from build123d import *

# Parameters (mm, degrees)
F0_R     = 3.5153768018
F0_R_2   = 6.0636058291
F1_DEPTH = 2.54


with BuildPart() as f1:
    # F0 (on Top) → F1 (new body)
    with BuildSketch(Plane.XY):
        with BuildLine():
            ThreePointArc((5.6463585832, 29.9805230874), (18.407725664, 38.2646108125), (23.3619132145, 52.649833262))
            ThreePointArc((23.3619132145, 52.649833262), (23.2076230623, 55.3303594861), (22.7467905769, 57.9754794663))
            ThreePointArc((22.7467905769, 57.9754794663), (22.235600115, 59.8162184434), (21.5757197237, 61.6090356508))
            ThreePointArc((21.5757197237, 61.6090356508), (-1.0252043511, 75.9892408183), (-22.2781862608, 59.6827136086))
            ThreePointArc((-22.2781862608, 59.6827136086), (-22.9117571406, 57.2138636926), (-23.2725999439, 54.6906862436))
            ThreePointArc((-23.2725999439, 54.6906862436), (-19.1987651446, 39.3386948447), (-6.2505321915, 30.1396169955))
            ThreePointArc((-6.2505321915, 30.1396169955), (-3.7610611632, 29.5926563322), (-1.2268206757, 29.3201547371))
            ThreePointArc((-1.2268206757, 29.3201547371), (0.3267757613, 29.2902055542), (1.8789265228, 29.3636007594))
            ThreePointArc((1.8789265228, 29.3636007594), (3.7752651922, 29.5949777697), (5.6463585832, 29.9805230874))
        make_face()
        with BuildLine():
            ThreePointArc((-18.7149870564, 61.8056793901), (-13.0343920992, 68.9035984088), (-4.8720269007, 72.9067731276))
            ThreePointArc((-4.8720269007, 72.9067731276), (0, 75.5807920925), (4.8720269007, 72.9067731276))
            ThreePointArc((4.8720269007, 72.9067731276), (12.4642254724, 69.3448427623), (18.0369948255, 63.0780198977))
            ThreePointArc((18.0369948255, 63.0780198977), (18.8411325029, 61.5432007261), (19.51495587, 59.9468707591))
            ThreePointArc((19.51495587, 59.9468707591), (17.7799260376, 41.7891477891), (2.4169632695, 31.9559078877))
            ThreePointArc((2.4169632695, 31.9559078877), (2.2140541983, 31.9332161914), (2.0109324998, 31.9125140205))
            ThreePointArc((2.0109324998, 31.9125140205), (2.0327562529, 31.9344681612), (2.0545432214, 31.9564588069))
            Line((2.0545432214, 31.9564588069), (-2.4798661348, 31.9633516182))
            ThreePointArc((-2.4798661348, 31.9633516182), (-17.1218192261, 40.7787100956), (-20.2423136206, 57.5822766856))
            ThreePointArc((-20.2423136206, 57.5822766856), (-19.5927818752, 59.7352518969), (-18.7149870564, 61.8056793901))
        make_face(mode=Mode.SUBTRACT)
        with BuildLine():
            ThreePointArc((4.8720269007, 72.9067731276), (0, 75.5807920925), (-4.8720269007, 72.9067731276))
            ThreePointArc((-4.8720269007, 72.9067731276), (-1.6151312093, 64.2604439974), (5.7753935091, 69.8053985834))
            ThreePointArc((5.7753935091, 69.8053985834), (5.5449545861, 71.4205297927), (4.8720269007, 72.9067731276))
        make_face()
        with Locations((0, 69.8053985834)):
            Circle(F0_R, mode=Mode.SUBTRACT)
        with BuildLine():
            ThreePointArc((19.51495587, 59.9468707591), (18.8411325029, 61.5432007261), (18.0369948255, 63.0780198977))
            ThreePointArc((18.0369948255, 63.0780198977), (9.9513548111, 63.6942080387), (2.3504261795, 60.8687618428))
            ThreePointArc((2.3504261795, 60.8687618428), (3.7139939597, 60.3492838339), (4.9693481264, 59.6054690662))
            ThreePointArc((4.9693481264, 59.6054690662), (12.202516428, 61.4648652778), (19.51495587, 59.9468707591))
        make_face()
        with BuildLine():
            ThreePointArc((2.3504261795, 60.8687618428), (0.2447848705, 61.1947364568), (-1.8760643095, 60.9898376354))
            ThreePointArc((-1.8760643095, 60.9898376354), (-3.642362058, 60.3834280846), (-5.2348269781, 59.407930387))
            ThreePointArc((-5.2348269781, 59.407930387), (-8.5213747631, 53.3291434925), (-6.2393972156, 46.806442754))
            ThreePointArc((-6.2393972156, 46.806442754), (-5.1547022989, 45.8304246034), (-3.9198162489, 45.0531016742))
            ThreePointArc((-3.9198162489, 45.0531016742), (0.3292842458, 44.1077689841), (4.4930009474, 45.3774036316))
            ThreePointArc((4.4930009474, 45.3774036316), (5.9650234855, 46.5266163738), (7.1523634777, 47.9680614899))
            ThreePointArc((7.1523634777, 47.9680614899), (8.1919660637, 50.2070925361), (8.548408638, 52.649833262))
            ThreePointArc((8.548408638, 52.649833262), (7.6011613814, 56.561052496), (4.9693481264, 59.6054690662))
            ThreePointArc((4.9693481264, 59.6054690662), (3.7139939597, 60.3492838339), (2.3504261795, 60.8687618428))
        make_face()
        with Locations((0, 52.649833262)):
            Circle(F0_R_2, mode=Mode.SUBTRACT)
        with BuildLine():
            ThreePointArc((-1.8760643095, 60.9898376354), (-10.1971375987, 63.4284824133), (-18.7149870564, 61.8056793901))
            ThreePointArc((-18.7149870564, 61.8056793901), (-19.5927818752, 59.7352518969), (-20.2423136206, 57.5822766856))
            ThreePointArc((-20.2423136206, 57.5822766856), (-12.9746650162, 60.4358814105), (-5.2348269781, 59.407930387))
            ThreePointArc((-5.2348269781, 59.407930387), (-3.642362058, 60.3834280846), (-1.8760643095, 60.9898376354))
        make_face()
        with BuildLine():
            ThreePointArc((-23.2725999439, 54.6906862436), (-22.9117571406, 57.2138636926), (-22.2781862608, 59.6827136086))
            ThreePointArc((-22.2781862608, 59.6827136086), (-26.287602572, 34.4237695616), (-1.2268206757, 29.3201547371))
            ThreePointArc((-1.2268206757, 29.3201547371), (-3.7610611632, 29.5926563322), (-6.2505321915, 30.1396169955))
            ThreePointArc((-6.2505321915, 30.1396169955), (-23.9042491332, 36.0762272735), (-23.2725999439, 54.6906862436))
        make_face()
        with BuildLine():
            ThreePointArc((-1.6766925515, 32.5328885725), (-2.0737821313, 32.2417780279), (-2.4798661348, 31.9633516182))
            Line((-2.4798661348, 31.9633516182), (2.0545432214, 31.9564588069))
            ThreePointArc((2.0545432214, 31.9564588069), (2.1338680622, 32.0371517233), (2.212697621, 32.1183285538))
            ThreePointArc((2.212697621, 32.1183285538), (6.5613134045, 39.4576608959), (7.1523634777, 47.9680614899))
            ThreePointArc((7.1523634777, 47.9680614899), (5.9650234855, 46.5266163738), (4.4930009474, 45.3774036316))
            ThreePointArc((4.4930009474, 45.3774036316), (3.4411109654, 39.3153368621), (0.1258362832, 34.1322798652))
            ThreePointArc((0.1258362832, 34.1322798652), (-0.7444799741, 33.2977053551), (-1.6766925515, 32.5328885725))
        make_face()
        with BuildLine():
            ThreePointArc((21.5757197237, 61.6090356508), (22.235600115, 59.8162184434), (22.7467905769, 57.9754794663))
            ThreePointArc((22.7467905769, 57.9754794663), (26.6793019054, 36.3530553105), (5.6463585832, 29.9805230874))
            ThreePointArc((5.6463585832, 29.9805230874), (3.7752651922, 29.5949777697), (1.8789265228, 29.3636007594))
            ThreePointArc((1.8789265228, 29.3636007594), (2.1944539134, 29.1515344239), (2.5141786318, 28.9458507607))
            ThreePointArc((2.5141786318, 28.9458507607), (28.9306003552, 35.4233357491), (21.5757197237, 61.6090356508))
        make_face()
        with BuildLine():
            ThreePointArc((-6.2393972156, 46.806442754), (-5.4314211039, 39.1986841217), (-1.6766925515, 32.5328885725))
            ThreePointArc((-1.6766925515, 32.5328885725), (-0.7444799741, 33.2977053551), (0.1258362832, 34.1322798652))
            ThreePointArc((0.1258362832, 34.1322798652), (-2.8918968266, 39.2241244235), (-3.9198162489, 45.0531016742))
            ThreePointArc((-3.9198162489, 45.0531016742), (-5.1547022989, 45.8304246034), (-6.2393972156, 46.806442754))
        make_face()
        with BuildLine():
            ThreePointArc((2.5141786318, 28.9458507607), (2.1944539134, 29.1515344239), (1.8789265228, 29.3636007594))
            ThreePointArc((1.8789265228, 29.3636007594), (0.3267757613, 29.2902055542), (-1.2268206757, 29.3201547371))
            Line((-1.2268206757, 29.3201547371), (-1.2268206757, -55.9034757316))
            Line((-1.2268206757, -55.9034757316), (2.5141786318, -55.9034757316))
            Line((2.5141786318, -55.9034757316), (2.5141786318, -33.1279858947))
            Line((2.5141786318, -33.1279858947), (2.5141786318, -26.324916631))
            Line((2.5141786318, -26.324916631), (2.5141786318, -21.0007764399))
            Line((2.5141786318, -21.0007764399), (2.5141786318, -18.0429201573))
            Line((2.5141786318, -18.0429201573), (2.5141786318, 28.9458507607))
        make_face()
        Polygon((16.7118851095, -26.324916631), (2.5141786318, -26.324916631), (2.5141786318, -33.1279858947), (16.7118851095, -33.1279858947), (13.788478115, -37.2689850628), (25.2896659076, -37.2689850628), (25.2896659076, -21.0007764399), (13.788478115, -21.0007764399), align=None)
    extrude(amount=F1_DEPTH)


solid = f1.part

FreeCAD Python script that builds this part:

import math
import FreeCAD as App
import Part
import Sketcher

V = App.Vector
Q = App.Units.Quantity

doc = App.newDocument("Part")
body = doc.addObject("PartDesign::Body", "Body")

# Sketch on XY plane
sketch1 = doc.addObject("Sketcher::SketchObject", "Sketch")
body.addObject(sketch1)
sketch1.AttachmentSupport = (doc.XY_Plane, [""])
sketch1.MapMode = "FlatFace"
sketch1.addGeometry([
    Part.ArcOfCircle(Part.Circle(V(0, 52.65, 0), V(0, 0, 1), 23.36), math.radians(23), math.radians(162)),  # 0
    Part.ArcOfCircle(Part.Circle(V(-11.09, 44.96, 0), V(0, 0, 1), 18.49), math.radians(127), math.radians(302)),  # 1
    Part.LineSegment(V(-1.23, 29.32, 0), V(-1.23, -55.9, 0)),  # 2
    Part.LineSegment(V(-1.23, -55.9, 0), V(2.51, -55.9, 0)),  # 3
    Part.LineSegment(V(2.51, -55.9, 0), V(2.51, -33.13, 0)),  # 4
    Part.LineSegment(V(2.51, -33.13, 0), V(16.71, -33.13, 0)),  # 5
    Part.LineSegment(V(16.71, -33.13, 0), V(13.79, -37.27, 0)),  # 6
    Part.LineSegment(V(13.79, -37.27, 0), V(25.29, -37.27, 0)),  # 7
    Part.LineSegment(V(25.29, -37.27, 0), V(25.29, -21, 0)),  # 8
    Part.LineSegment(V(25.29, -21, 0), V(13.79, -21, 0)),  # 9
    Part.LineSegment(V(13.79, -21, 0), V(16.71, -26.32, 0)),  # 10
    Part.LineSegment(V(16.71, -26.32, 0), V(2.51, -26.32, 0)),  # 11
    Part.LineSegment(V(2.51, -26.32, 0), V(2.51, 28.95, 0)),  # 12
    Part.ArcOfCircle(Part.Circle(V(12.59, 44.96, 0), V(0, 0, 1), 18.92), math.radians(-122), math.radians(62)),  # 13
    Part.ArcOfCircle(Part.Circle(V(0, 52.65, 0), V(0, 0, 1), 23.36), math.radians(-76), math.radians(0)),  # 14
    Part.ArcOfCircle(Part.Circle(V(0, 52.65, 0), V(0, 0, 1), 23.36), math.radians(0), math.radians(13.18)),  # 15
    Part.ArcOfCircle(Part.Circle(V(12.59, 44.96, 0), V(0, 0, 1), 16.51), math.radians(-115), math.radians(52)),  # 16
    Part.ArcOfCircle(Part.Circle(V(0, 52.65, 0), V(0, 0, 1), 23.36), math.radians(175), math.radians(254)),  # 17
    Part.ArcOfCircle(Part.Circle(V(-11.09, 44.96, 0), V(0, 0, 1), 15.59), math.radians(141), math.radians(288)),  # 18
    Part.ArcOfCircle(Part.Circle(V(0, 52.65, 0), V(0, 0, 1), 20.83), math.radians(166), math.radians(263)),  # 19
    Part.ArcOfCircle(Part.Circle(V(-11.09, 44.96, 0), V(0, 0, 1), 15.59), math.radians(68), math.radians(126)),  # 20
    Part.ArcOfCircle(Part.Circle(V(0, 52.65, 0), V(0, 0, 1), 8.55), math.radians(128), math.radians(223)),  # 21
    Part.ArcOfCircle(Part.Circle(V(12.59, 44.96, 0), V(0, 0, 1), 18.92), math.radians(174), math.radians(221)),  # 22
    Part.ArcOfCircle(Part.Circle(V(-11.09, 44.96, 0), V(0, 0, 1), 15.59), math.radians(-56.47), math.radians(-52.85)),  # 23
    Part.ArcOfCircle(Part.Circle(V(0, 52.65, 0), V(0, 0, 1), 8.55), math.radians(-117), math.radians(-58)),  # 24
    Part.ArcOfCircle(Part.Circle(V(-11.09, 44.96, 0), V(0, 0, 1), 15.59), math.radians(-44), math.radians(2)),  # 25
    Part.ArcOfCircle(Part.Circle(V(12.59, 44.96, 0), V(0, 0, 1), 16.51), math.radians(180), math.radians(221)),  # 26
    Part.ArcOfCircle(Part.Circle(V(0, 52.65, 0), V(0, 0, 1), 8.55), math.radians(-33), math.radians(0)),  # 27
    Part.ArcOfCircle(Part.Circle(V(0, 52.65, 0), V(0, 0, 1), 8.55), math.radians(0), math.radians(54)),  # 28
    Part.ArcOfCircle(Part.Circle(V(12.59, 44.96, 0), V(0, 0, 1), 16.51), math.radians(65), math.radians(117)),  # 29
    Part.ArcOfCircle(Part.Circle(V(0, 52.65, 0), V(0, 0, 1), 20.83), math.radians(-83), math.radians(21)),  # 30
    Part.ArcOfCircle(Part.Circle(V(0, 52.65, 0), V(0, 0, 1), 20.83), math.radians(-84.46), math.radians(-83.34)),  # 31
    Part.ArcOfCircle(Part.Circle(V(-11.09, 44.96, 0), V(0, 0, 1), 18.49), math.radians(-44.88), math.radians(-44.69)),  # 32
    Part.ArcOfCircle(Part.Circle(V(-11.09, 44.96, 0), V(0, 0, 1), 18.49), math.radians(-44.69), math.radians(-43.98)),  # 33
    Part.ArcOfCircle(Part.Circle(V(-11.09, 44.96, 0), V(0, 0, 1), 18.49), math.radians(-44), math.radians(9)),  # 34
    Part.ArcOfCircle(Part.Circle(V(0, 52.65, 0), V(0, 0, 1), 20.83), math.radians(104), math.radians(154)),  # 35
    Part.ArcOfCircle(Part.Circle(V(0, 69.81, 0), V(0, 0, 1), 5.78), math.radians(148), math.radians(360)),  # 36
    Part.ArcOfCircle(Part.Circle(V(0, 69.81, 0), V(0, 0, 1), 5.78), math.radians(0), math.radians(32)),  # 37
    Part.ArcOfCircle(Part.Circle(V(0, 52.65, 0), V(0, 0, 1), 20.83), math.radians(30), math.radians(76)),  # 38
    Part.ArcOfCircle(Part.Circle(V(12.59, 44.96, 0), V(0, 0, 1), 18.92), math.radians(73), math.radians(123)),  # 39
    Part.ArcOfCircle(Part.Circle(V(0, 52.65, 0), V(0, 0, 1), 8.55), math.radians(74), math.radians(103)),  # 40
    Part.ArcOfCircle(Part.Circle(V(-11.09, 44.96, 0), V(0, 0, 1), 18.49), math.radians(60), math.radians(114)),  # 41
    Part.Circle(V(0, 52.65, 0), V(0, 0, 1), 6.06),  # 42
    Part.Circle(V(0, 69.81, 0), V(0, 0, 1), 3.52),  # 43
], False)
sketch1.addConstraint([
    Sketcher.Constraint("Coincident", 0, 2, 1, 1),
    Sketcher.Constraint("Coincident", 1, 2, 2, 1),
    Sketcher.Constraint("Coincident", 2, 2, 3, 1),
    Sketcher.Constraint("Coincident", 3, 2, 4, 1),
    Sketcher.Constraint("Coincident", 4, 2, 5, 1),
    Sketcher.Constraint("Coincident", 5, 2, 6, 1),
    Sketcher.Constraint("Coincident", 6, 2, 7, 1),
    Sketcher.Constraint("Coincident", 7, 2, 8, 1),
    Sketcher.Constraint("Coincident", 8, 2, 9, 1),
    Sketcher.Constraint("Coincident", 9, 2, 10, 1),
    Sketcher.Constraint("Coincident", 10, 2, 11, 1),
    Sketcher.Constraint("Coincident", 11, 2, 12, 1),
    Sketcher.Constraint("Coincident", 12, 2, 13, 1),
    Sketcher.Constraint("Coincident", 13, 2, 0, 1),
    Sketcher.Constraint("Tangent", 14, 2, 15, 1),
    Sketcher.Constraint("Coincident", 15, 2, 16, 2),
    Sketcher.Constraint("Coincident", 16, 1, 14, 1),
    Sketcher.Constraint("Coincident", 17, 1, 18, 1),
    Sketcher.Constraint("Coincident", 18, 2, 17, 2),
    Sketcher.Constraint("Coincident", 19, 1, 20, 2),
    Sketcher.Constraint("Coincident", 20, 1, 21, 1),
    Sketcher.Constraint("Coincident", 21, 2, 22, 1),
    Sketcher.Constraint("Coincident", 22, 2, 23, 2),
    Sketcher.Constraint("Coincident", 23, 1, 19, 2),
    Sketcher.Constraint("Coincident", 24, 2, 25, 2),
    Sketcher.Constraint("Coincident", 25, 1, 26, 2),
    Sketcher.Constraint("Coincident", 26, 1, 24, 1),
    Sketcher.Constraint("Tangent", 27, 2, 28, 1),
    Sketcher.Constraint("Coincident", 28, 2, 29, 2),
    Sketcher.Constraint("Coincident", 29, 1, 30, 2),
    Sketcher.Constraint("Tangent", 30, 1, 31, 2),
    Sketcher.Constraint("Coincident", 31, 1, 32, 1),
    Sketcher.Constraint("Tangent", 32, 2, 33, 1),
    Sketcher.Constraint("Tangent", 33, 2, 34, 1),
    Sketcher.Constraint("Coincident", 34, 2, 27, 1),
    Sketcher.Constraint("Coincident", 35, 1, 36, 1),
    Sketcher.Constraint("Tangent", 36, 2, 37, 1),
    Sketcher.Constraint("Coincident", 37, 2, 38, 2),
    Sketcher.Constraint("Coincident", 38, 1, 39, 1),
    Sketcher.Constraint("Coincident", 39, 2, 40, 1),
    Sketcher.Constraint("Coincident", 40, 2, 41, 1),
    Sketcher.Constraint("Coincident", 41, 2, 35, 2),
    Sketcher.Constraint("Vertical", 2),
    Sketcher.Constraint("Horizontal", 3),
    Sketcher.Constraint("Vertical", 4),
    Sketcher.Constraint("Horizontal", 5),
    Sketcher.Constraint("Horizontal", 7),
    Sketcher.Constraint("Vertical", 8),
    Sketcher.Constraint("Horizontal", 9),
    Sketcher.Constraint("Horizontal", 11),
    Sketcher.Constraint("Vertical", 12),
    Sketcher.Constraint("Coincident", 14, 3, 0, 3),
    Sketcher.Constraint("Coincident", 16, 3, 13, 3),
    Sketcher.Constraint("Coincident", 17, 3, 0, 3),
    Sketcher.Constraint("Coincident", 18, 3, 1, 3),
    Sketcher.Constraint("Coincident", 19, 3, 0, 3),
    Sketcher.Constraint("Coincident", 20, 3, 1, 3),
    Sketcher.Constraint("Coincident", 21, 3, 0, 3),
    Sketcher.Constraint("Coincident", 22, 3, 13, 3),
    Sketcher.Constraint("Coincident", 23, 3, 1, 3),
    Sketcher.Constraint("Coincident", 24, 3, 0, 3),
    Sketcher.Constraint("Coincident", 25, 3, 1, 3),
    Sketcher.Constraint("Coincident", 26, 3, 13, 3),
    Sketcher.Constraint("Coincident", 27, 3, 0, 3),
    Sketcher.Constraint("Coincident", 29, 3, 13, 3),
    Sketcher.Constraint("Coincident", 30, 3, 0, 3),
    Sketcher.Constraint("Coincident", 33, 3, 1, 3),
    Sketcher.Constraint("Coincident", 35, 3, 0, 3),
    Sketcher.Constraint("Coincident", 38, 3, 0, 3),
    Sketcher.Constraint("Coincident", 39, 3, 13, 3),
    Sketcher.Constraint("Coincident", 40, 3, 0, 3),
    Sketcher.Constraint("Coincident", 41, 3, 1, 3),
    Sketcher.Constraint("Coincident", 42, 3, 0, 3),
    Sketcher.Constraint("Coincident", 43, 3, 36, 3),
    Sketcher.Constraint("Equal", 0, 14),
    Sketcher.Constraint("Equal", 14, 15),
    Sketcher.Constraint("Equal", 15, 17),
    Sketcher.Constraint("Equal", 18, 20),
    Sketcher.Constraint("Equal", 13, 22),
    Sketcher.Constraint("Equal", 20, 23),
    Sketcher.Constraint("Equal", 21, 24),
    Sketcher.Constraint("Equal", 23, 25),
    Sketcher.Constraint("Equal", 16, 26),
    Sketcher.Constraint("Equal", 24, 27),
    Sketcher.Constraint("Equal", 27, 28),
    Sketcher.Constraint("Equal", 26, 29),
    Sketcher.Constraint("Equal", 19, 30),
    Sketcher.Constraint("Equal", 30, 31),
    Sketcher.Constraint("Equal", 1, 33),
    Sketcher.Constraint("Equal", 33, 34),
    Sketcher.Constraint("Equal", 31, 35),
    Sketcher.Constraint("Equal", 36, 37),
    Sketcher.Constraint("Equal", 35, 38),
    Sketcher.Constraint("Equal", 22, 39),
    Sketcher.Constraint("Equal", 28, 40),
    Sketcher.Constraint("Equal", 34, 41),
    Sketcher.Constraint("Symmetric", 35, 1, 37, 2, -2),
    Sketcher.Constraint("Horizontal", 1, 3, 13, 3),
    Sketcher.Constraint("Horizontal", 42, 3, 14, 2),
    Sketcher.Constraint("Horizontal", 14, 2, 27, 2),
    Sketcher.Constraint("Horizontal", 43, 3, 36, 2),
    Sketcher.Constraint("Vertical", 6, 2, 9, 2),
    Sketcher.Constraint("Vertical", 5, 2, 10, 2),
    Sketcher.Constraint("Vertical", 4, 2, 11, 2),
    Sketcher.Constraint("Radius", 16, Q("0.65 in")),
    Sketcher.Constraint("Diameter", 42, Q("12.127212 mm")),
    Sketcher.Constraint("Radius", 13, Q("18.919689 mm")),
    Sketcher.Constraint("Radius", 21, Q("8.548409 mm")),
    Sketcher.Constraint("Diameter", 43, Q("7.030754 mm")),
    Sketcher.Constraint("DistanceX", 3, 1, 3, 2, Q("3.740999 mm")),
    Sketcher.Constraint("DistanceX", 1, 2, -1, 1, Q("0.0483 in")),
    Sketcher.Constraint("Radius", 0, Q("23.361913 mm")),
    Sketcher.Constraint("Radius", 1, Q("18.490736 mm")),
    Sketcher.Constraint("Radius", 18, Q("15.590565 mm")),
    Sketcher.Constraint("Radius", 19, Q("20.834593 mm")),
    Sketcher.Constraint("Radius", 32, Q("18.490688 mm")),
    Sketcher.Constraint("Radius", 36, Q("5.775394 mm")),
    Sketcher.Constraint("DistanceY", 2, 2, 2, 1, Q("85.22363 mm")),
    Sketcher.Constraint("DistanceY", 4, 1, 4, 2, Q("22.77549 mm")),
    Sketcher.Constraint("DistanceY", 8, 1, 8, 2, Q("16.268209 mm")),
    Sketcher.Constraint("DistanceY", -1, 1, 36, 3, Q("69.805399 mm")),
    Sketcher.Constraint("DistanceX", 17, 1, -1, 1, Q("23.2726 mm")),
    Sketcher.Constraint("DistanceX", -1, 1, 24, 2, Q("4.493001 mm")),
    Sketcher.Constraint("DistanceY", -1, 1, 26, 1, Q("45.053102 mm")),
    Sketcher.Constraint("DistanceX", 5, 1, 5, 2, Q("14.197706 mm")),
    Sketcher.Constraint("DistanceX", 7, 1, 7, 2, Q("11.501188 mm")),
    Sketcher.Constraint("DistanceY", 12, 1, 12, 2, Q("55.270767 mm")),
    Sketcher.Constraint("DistanceY", -1, 1, 1, 3, Q("44.959411 mm")),
    Sketcher.Constraint("DistanceX", -1, 1, 6, 2, Q("13.788478 mm")),
    Sketcher.Constraint("DistanceY", -1, 1, 32, 2, Q("31.956459 mm")),
    Sketcher.Constraint("DistanceY", -1, 1, 33, 2, Q("32.118329 mm")),
    Sketcher.Constraint("Distance", 6, Q("5.068943 mm")),
    Sketcher.Constraint("DistanceX", -1, 1, 30, 1, Q("2.416963 mm")),
])
pad1 = doc.addObject("PartDesign::Pad", "Pad")
body.addObject(pad1)
pad1.Profile = sketch1
pad1.Length = Q("0.1 in")

doc.recompute()
